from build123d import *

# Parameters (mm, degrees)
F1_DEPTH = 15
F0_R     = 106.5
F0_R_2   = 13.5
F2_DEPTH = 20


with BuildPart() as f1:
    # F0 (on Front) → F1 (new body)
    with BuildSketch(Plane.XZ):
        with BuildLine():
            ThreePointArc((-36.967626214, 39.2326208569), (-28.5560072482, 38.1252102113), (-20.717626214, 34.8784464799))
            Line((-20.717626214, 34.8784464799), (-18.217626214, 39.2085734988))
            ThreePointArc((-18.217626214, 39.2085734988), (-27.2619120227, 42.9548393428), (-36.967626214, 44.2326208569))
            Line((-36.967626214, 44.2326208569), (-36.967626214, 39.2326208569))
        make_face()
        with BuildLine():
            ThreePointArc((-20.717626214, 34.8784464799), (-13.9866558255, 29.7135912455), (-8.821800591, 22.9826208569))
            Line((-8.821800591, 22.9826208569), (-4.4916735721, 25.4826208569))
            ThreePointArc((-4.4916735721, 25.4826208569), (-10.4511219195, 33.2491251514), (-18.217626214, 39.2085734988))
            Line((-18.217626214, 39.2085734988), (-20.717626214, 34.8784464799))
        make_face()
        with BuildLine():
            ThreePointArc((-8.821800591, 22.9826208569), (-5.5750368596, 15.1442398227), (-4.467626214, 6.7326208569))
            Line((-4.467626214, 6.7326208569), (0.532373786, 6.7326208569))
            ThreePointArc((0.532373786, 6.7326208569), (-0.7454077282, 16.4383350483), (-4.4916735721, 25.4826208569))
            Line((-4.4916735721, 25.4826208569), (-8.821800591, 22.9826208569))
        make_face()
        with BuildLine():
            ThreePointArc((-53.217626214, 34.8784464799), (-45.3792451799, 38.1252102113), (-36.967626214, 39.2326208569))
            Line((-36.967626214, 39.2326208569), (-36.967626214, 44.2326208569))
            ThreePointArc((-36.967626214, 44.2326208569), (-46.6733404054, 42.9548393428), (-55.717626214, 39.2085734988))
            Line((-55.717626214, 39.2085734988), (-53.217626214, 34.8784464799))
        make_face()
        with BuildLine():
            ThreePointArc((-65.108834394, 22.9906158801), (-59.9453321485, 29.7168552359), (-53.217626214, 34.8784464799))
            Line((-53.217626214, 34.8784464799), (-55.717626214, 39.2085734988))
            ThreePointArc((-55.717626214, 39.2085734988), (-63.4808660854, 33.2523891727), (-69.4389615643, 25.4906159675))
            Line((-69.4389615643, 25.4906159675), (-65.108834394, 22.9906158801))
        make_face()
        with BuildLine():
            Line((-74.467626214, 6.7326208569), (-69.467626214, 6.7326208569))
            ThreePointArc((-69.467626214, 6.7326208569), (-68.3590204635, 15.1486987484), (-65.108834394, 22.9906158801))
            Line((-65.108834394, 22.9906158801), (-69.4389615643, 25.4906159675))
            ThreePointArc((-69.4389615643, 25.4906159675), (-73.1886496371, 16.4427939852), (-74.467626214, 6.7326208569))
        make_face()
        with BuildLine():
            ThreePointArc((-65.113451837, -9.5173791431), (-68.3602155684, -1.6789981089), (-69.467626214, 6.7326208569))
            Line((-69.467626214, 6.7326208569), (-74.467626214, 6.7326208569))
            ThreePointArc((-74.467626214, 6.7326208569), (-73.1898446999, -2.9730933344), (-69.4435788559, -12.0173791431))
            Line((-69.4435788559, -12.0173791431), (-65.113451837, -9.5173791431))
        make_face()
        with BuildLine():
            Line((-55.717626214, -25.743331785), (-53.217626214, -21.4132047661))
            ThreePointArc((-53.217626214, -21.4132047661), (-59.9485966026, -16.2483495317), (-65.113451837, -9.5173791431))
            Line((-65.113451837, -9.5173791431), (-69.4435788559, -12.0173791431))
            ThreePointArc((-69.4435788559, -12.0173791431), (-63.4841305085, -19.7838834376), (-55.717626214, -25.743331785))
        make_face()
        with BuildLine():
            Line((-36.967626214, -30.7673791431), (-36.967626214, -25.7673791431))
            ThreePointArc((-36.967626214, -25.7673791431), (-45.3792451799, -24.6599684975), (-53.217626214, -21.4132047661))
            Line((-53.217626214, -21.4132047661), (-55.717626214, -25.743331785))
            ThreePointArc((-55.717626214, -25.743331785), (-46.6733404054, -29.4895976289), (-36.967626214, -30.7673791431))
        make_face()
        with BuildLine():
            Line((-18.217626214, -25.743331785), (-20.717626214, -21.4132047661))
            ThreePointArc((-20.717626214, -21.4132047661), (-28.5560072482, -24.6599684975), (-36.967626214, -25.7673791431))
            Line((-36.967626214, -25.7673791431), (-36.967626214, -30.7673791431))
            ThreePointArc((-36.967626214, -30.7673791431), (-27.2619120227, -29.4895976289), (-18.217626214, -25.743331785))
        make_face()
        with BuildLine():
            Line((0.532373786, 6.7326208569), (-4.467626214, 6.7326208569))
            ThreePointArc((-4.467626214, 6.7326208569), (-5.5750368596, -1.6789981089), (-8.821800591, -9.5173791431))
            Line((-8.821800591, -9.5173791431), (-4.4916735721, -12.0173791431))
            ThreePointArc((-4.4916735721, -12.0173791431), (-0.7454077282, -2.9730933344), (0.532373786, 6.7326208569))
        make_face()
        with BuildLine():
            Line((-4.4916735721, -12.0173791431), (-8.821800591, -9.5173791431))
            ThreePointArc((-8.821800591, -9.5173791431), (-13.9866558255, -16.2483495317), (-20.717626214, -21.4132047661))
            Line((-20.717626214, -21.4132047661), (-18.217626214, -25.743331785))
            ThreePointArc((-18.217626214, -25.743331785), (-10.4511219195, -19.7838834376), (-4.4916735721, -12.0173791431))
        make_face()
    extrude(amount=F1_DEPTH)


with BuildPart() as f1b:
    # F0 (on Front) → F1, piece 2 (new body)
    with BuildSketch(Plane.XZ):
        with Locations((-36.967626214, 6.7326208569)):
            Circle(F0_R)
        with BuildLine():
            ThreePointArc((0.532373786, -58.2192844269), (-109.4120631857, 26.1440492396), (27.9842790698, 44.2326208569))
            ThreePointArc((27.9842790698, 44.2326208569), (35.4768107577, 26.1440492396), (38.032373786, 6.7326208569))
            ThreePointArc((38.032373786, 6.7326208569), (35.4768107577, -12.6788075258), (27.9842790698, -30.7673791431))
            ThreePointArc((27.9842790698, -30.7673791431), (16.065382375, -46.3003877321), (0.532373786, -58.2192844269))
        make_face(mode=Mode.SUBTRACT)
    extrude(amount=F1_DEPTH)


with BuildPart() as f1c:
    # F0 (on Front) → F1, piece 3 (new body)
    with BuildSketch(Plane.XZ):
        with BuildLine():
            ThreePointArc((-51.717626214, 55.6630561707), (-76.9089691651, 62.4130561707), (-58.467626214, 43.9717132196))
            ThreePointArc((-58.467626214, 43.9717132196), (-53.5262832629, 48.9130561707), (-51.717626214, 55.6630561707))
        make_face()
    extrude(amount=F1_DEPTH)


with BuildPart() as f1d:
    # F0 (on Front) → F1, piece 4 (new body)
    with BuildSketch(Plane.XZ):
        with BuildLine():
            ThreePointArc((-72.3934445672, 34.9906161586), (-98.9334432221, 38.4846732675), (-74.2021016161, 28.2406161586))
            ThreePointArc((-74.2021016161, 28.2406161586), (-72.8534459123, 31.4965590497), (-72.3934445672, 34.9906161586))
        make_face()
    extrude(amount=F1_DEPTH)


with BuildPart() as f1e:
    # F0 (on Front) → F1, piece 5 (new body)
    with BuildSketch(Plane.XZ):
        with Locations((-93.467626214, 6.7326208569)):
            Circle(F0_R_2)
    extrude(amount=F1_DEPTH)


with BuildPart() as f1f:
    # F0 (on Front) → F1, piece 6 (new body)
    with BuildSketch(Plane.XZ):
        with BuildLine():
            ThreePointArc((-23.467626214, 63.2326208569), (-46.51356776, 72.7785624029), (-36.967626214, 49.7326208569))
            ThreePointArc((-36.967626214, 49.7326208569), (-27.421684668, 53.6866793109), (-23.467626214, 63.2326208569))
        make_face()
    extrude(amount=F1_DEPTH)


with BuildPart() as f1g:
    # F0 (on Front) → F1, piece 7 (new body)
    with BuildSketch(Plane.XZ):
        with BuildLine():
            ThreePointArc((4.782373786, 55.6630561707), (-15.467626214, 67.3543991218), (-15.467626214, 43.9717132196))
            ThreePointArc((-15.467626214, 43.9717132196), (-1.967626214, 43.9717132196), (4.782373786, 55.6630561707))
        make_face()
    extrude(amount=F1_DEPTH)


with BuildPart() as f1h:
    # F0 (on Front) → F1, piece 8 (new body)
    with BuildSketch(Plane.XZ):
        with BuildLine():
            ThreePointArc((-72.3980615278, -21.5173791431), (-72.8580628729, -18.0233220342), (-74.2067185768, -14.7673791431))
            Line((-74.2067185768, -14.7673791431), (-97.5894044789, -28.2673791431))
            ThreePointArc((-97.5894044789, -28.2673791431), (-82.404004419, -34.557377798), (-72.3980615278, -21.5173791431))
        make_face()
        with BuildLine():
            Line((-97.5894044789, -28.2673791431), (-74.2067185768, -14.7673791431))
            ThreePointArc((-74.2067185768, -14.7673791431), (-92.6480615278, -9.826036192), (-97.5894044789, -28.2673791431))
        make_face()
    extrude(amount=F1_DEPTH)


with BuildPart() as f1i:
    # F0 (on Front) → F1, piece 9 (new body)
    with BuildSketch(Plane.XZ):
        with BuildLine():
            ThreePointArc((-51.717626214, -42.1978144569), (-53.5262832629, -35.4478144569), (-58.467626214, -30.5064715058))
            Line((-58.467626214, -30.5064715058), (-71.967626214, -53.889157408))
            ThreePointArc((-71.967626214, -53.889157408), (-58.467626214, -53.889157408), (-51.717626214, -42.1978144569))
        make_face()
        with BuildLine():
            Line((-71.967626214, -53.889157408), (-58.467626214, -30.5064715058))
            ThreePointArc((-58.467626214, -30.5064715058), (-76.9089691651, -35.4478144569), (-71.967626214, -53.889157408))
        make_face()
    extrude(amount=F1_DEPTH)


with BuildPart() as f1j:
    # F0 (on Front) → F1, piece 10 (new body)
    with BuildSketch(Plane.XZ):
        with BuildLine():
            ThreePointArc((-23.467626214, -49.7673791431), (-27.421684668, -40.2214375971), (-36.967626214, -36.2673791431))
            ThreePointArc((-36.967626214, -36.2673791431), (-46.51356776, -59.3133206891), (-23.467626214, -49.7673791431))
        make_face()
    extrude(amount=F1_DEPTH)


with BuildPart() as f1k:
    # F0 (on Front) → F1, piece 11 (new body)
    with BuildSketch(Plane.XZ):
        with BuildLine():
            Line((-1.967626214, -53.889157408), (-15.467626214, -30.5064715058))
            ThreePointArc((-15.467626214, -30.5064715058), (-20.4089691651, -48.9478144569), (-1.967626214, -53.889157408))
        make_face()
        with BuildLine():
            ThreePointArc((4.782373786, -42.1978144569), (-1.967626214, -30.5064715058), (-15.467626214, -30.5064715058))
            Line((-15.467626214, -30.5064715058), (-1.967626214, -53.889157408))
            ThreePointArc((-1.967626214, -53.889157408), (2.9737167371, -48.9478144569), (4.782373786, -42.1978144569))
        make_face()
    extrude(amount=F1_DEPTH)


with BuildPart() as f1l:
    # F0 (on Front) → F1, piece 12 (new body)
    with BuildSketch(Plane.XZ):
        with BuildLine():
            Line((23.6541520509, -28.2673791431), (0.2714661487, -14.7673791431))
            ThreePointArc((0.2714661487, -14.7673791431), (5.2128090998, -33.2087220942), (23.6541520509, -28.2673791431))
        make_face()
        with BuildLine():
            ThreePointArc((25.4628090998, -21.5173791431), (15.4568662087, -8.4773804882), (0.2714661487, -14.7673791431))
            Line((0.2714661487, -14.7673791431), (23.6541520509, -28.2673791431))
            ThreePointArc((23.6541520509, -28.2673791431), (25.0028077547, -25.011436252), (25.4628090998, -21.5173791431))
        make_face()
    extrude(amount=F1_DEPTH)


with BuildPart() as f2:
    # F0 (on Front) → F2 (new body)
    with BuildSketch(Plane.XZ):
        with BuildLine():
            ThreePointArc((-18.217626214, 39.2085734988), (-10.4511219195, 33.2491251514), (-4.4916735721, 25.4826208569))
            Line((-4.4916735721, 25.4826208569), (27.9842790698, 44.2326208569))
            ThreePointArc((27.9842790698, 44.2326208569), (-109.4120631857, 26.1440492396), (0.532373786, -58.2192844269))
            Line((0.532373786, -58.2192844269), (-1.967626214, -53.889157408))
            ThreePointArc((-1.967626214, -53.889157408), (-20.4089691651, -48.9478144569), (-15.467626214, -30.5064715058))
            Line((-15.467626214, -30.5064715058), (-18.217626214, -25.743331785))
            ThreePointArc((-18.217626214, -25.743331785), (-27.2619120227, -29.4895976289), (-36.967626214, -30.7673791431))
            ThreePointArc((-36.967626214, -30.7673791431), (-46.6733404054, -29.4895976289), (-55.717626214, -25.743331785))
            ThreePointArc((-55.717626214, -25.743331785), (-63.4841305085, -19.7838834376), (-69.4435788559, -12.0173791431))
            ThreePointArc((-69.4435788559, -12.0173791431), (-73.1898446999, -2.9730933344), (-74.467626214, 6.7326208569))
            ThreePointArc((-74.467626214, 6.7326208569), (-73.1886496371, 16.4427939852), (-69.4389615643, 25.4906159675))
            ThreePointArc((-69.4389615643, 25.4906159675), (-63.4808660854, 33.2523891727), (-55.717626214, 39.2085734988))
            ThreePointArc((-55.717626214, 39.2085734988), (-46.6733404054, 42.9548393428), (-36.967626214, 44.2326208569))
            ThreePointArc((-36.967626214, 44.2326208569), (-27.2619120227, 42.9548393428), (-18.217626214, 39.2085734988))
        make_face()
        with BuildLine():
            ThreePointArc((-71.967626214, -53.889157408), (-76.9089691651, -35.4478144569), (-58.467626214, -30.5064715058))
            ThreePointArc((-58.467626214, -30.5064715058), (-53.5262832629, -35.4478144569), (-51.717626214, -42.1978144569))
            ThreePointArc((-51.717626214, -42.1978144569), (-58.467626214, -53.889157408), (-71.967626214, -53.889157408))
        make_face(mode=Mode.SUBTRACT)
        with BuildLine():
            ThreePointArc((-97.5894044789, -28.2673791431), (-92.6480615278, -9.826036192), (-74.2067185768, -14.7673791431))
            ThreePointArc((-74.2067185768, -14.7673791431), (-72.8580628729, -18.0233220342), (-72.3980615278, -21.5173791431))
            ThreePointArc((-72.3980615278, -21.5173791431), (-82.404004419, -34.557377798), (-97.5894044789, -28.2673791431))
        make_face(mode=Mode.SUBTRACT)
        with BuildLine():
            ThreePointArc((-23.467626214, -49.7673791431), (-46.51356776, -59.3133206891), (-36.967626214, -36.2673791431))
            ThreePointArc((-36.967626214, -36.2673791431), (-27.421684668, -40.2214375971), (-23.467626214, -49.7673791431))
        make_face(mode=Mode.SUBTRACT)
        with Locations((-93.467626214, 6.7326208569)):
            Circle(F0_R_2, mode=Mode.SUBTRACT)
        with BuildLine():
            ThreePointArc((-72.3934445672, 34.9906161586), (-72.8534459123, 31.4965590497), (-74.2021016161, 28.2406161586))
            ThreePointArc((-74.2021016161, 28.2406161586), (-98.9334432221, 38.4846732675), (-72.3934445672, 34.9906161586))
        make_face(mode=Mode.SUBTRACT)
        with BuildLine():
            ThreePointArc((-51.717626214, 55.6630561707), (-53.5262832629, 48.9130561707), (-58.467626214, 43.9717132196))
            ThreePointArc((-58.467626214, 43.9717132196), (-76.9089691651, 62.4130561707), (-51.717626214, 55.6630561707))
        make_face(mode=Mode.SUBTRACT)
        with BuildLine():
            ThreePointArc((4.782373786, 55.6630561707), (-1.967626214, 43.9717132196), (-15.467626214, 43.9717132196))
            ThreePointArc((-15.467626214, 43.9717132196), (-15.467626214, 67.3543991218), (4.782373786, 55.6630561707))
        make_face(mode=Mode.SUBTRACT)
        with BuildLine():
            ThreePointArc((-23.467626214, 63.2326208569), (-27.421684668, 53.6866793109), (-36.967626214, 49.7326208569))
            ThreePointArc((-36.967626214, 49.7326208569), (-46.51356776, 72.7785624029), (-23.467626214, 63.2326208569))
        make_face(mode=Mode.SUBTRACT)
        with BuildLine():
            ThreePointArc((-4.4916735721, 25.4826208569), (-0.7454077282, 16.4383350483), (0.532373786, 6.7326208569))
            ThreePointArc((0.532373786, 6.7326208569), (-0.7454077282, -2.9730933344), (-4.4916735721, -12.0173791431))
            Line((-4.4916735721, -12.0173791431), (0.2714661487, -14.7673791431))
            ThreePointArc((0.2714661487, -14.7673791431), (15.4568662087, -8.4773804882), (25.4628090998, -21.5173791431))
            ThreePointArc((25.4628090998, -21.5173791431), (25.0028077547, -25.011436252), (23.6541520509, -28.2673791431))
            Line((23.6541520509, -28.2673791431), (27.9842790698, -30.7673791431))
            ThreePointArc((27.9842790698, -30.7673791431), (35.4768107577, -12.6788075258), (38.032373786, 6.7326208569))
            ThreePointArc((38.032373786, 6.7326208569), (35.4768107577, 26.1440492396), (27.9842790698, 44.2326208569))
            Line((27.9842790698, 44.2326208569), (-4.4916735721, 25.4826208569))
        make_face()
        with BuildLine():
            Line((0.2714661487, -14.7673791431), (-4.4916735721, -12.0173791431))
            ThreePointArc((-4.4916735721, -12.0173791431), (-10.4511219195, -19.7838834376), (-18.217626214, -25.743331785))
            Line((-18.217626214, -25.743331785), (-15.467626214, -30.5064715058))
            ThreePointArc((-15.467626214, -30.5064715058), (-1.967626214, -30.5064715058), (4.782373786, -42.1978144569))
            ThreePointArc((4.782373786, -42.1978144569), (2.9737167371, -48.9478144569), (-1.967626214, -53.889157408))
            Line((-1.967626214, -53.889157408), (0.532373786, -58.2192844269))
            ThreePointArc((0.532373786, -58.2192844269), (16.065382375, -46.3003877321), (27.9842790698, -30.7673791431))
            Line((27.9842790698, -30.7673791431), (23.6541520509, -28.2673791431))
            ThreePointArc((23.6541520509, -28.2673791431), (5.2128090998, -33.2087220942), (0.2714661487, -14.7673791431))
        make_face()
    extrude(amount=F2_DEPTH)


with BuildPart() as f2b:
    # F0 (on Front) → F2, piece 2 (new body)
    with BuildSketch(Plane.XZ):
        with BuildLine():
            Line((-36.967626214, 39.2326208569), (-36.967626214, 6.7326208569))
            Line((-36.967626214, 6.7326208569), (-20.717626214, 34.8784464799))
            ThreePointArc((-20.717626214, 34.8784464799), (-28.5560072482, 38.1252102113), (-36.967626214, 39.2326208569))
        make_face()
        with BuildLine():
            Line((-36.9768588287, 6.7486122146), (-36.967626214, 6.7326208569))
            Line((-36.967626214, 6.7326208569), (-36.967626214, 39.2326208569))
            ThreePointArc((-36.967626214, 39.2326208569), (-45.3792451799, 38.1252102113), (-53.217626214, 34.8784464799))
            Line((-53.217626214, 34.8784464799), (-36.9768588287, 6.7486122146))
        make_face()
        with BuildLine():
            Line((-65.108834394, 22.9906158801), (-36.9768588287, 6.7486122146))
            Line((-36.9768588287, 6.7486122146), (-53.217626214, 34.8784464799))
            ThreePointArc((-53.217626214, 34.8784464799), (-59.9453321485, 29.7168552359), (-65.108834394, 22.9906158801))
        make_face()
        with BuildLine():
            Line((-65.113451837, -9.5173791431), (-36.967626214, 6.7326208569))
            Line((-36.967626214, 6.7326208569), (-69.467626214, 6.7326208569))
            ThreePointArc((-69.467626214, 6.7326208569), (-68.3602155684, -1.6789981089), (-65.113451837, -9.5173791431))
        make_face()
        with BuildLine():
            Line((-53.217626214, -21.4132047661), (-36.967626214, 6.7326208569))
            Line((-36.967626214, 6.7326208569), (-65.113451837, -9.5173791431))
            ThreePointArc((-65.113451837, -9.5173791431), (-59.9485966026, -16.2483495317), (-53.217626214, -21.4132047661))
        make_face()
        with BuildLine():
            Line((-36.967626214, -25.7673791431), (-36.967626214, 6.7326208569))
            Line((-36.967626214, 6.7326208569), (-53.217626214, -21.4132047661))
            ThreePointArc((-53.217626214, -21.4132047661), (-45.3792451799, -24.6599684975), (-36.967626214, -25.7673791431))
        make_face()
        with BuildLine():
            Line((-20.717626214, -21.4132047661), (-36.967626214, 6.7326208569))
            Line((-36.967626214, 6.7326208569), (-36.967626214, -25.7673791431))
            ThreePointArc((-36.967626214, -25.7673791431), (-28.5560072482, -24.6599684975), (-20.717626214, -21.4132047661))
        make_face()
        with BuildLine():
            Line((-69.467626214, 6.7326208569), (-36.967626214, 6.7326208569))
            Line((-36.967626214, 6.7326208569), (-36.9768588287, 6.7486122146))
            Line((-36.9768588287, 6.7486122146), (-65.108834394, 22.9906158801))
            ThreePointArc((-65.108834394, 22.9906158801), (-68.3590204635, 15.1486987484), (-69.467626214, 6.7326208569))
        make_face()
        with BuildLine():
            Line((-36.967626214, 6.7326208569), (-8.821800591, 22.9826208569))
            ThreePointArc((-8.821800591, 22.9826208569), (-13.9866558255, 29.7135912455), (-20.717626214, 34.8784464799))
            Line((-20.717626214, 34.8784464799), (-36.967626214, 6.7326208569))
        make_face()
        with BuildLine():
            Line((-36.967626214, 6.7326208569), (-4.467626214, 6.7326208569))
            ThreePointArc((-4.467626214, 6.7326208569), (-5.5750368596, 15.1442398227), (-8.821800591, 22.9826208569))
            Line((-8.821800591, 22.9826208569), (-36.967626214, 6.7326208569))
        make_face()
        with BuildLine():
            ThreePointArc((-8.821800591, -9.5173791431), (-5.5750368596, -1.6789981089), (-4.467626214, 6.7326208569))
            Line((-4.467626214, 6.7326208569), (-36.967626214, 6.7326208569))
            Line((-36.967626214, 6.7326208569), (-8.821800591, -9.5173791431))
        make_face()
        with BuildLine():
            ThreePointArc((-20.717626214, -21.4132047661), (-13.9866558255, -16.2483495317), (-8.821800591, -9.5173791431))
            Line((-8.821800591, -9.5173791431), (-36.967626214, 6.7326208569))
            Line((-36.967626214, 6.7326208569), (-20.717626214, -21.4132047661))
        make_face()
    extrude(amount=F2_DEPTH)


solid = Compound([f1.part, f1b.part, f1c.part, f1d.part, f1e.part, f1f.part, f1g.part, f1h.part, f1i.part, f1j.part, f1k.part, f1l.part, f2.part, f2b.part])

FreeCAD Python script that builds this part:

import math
import FreeCAD as App
import Part
import Sketcher

V = App.Vector
Q = App.Units.Quantity

doc = App.newDocument("Part")
body = doc.addObject("PartDesign::Body", "Body")

sketch1 = body.newObject("Sketcher::SketchObject", "Sketch")
sketch1.AttachmentSupport = (doc.getObject("XZ_Plane"), [""])
sketch1.MapMode = "FlatFace"
sketch1.addGeometry([
    Part.ArcOfCircle(Part.Circle(V(-37, 7, 0), V(0, 0, 1), 38), math.radians(-30), math.radians(0)),
    Part.ArcOfCircle(Part.Circle(V(-37, 7, 0), V(0, 0, 1), 38), math.radians(0), math.radians(30)),
    Part.ArcOfCircle(Part.Circle(V(-37, 7, 0), V(0, 0, 1), 37), math.radians(30), math.radians(60)),
    Part.ArcOfCircle(Part.Circle(V(-37, 7, 0), V(0, 0, 1), 37), math.radians(60), math.radians(90)),
    Part.ArcOfCircle(Part.Circle(V(-37, 7, 0), V(0, 0, 1), 37), math.radians(90), math.radians(120)),
    Part.ArcOfCircle(Part.Circle(V(-37, 7, 0), V(0, 0, 1), 37), math.radians(120), math.radians(150)),
    Part.ArcOfCircle(Part.Circle(V(-37, 7, 0), V(0, 0, 1), 38), math.radians(150), math.radians(180)),
    Part.ArcOfCircle(Part.Circle(V(-37, 7, 0), V(0, 0, 1), 37), math.radians(180), math.radians(210)),
    Part.ArcOfCircle(Part.Circle(V(-37, 7, 0), V(0, 0, 1), 37), math.radians(-150), math.radians(-120)),
    Part.ArcOfCircle(Part.Circle(V(-37, 7, 0), V(0, 0, 1), 38), math.radians(-120), math.radians(-90)),
    Part.ArcOfCircle(Part.Circle(V(-37, 7, 0), V(0, 0, 1), 38), math.radians(-90), math.radians(-60)),
    Part.ArcOfCircle(Part.Circle(V(-37, 7, 0), V(0, 0, 1), 37), math.radians(-60), math.radians(-30)),
    Part.ArcOfCircle(Part.Circle(V(-37, 7, 0), V(0, 0, 1), 32), math.radians(60), math.radians(90)),
    Part.ArcOfCircle(Part.Circle(V(-37, 7, 0), V(0, 0, 1), 33), math.radians(30), math.radians(60)),
    Part.ArcOfCircle(Part.Circle(V(-37, 7, 0), V(0, 0, 1), 32), math.radians(0), math.radians(30)),
    Part.ArcOfCircle(Part.Circle(V(-37, 7, 0), V(0, 0, 1), 32), math.radians(-30), math.radians(0)),
    Part.ArcOfCircle(Part.Circle(V(-37, 7, 0), V(0, 0, 1), 33), math.radians(-60), math.radians(-30)),
    Part.ArcOfCircle(Part.Circle(V(-37, 7, 0), V(0, 0, 1), 32), math.radians(-90), math.radians(-60)),
    Part.ArcOfCircle(Part.Circle(V(-37, 7, 0), V(0, 0, 1), 32), math.radians(-120), math.radians(-90)),
    Part.ArcOfCircle(Part.Circle(V(-37, 7, 0), V(0, 0, 1), 32), math.radians(-150), math.radians(-120)),
    Part.ArcOfCircle(Part.Circle(V(-37, 7, 0), V(0, 0, 1), 32), math.radians(180), math.radians(210)),
    Part.ArcOfCircle(Part.Circle(V(-37, 7, 0), V(0, 0, 1), 32), math.radians(150), math.radians(180)),
    Part.ArcOfCircle(Part.Circle(V(-37, 7, 0), V(0, 0, 1), 33), math.radians(120), math.radians(150)),
    Part.ArcOfCircle(Part.Circle(V(-37, 7, 0), V(0, 0, 1), 32), math.radians(90), math.radians(120)),
], False)
sketch1.addConstraint([
    Sketcher.Constraint("Tangent", 0, 2, 1, 1),
    Sketcher.Constraint("Tangent", 1, 2, 2, 1),
    Sketcher.Constraint("Tangent", 2, 2, 3, 1),
    Sketcher.Constraint("Tangent", 3, 2, 4, 1),
    Sketcher.Constraint("Tangent", 4, 2, 5, 1),
    Sketcher.Constraint("Tangent", 5, 2, 6, 1),
    Sketcher.Constraint("Tangent", 6, 2, 7, 1),
    Sketcher.Constraint("Tangent", 7, 2, 8, 1),
    Sketcher.Constraint("Tangent", 8, 2, 9, 1),
    Sketcher.Constraint("Tangent", 9, 2, 10, 1),
    Sketcher.Constraint("Tangent", 10, 2, 11, 1),
    Sketcher.Constraint("Tangent", 11, 2, 0, 1),
    Sketcher.Constraint("Tangent", 12, 1, 13, 2),
    Sketcher.Constraint("Tangent", 13, 1, 14, 2),
    Sketcher.Constraint("Tangent", 14, 1, 15, 2),
    Sketcher.Constraint("Tangent", 15, 1, 16, 2),
    Sketcher.Constraint("Tangent", 16, 1, 17, 2),
    Sketcher.Constraint("Tangent", 17, 1, 18, 2),
    Sketcher.Constraint("Tangent", 18, 1, 19, 2),
    Sketcher.Constraint("Tangent", 19, 1, 20, 2),
    Sketcher.Constraint("Tangent", 20, 1, 21, 2),
    Sketcher.Constraint("Tangent", 21, 1, 22, 2),
    Sketcher.Constraint("Tangent", 22, 1, 23, 2),
    Sketcher.Constraint("Tangent", 23, 1, 12, 2),
    Sketcher.Constraint("Coincident", 2, 3, 0, 3),
    Sketcher.Constraint("Coincident", 4, 3, 0, 3),
    Sketcher.Constraint("Coincident", 6, 3, 0, 3),
    Sketcher.Constraint("Coincident", 8, 3, 0, 3),
    Sketcher.Constraint("Coincident", 12, 3, 0, 3),
    Sketcher.Constraint("Coincident", 14, 3, 0, 3),
    Sketcher.Constraint("Coincident", 16, 3, 0, 3),
    Sketcher.Constraint("Coincident", 18, 3, 0, 3),
    Sketcher.Constraint("Coincident", 20, 3, 0, 3),
    Sketcher.Constraint("Equal", 8, 9),
    Sketcher.Constraint("Equal", 20, 21),
    Sketcher.Constraint("Horizontal", 23, 3, 0, 2),
    Sketcher.Constraint("Horizontal", 2, 2, 4, 2),
    Sketcher.Constraint("Horizontal", 0, 2, 6, 2),
    Sketcher.Constraint("Horizontal", 8, 2, 10, 2),
    Sketcher.Constraint("Horizontal", 7, 2, 11, 2),
    Sketcher.Constraint("Horizontal", 6, 2, 14, 1),
    Sketcher.Constraint("Horizontal", 16, 1, 18, 1),
    Sketcher.Constraint("Horizontal", 15, 1, 19, 1),
    Sketcher.Constraint("Horizontal", 14, 1, 20, 1),
    Sketcher.Constraint("Horizontal", 12, 1, 22, 1),
    Sketcher.Constraint("Vertical", 23, 3, 3, 2),
    Sketcher.Constraint("Vertical", 4, 2, 8, 2),
    Sketcher.Constraint("Vertical", 3, 2, 9, 2),
    Sketcher.Constraint("Vertical", 1, 2, 11, 2),
    Sketcher.Constraint("Vertical", 13, 1, 15, 1),
    Sketcher.Constraint("Vertical", 12, 1, 16, 1),
    Sketcher.Constraint("Vertical", 9, 2, 17, 1),
    Sketcher.Constraint("Vertical", 17, 1, 23, 1),
    Sketcher.Constraint("Radius", 0, Q("37.5 mm")),
    Sketcher.Constraint("Radius", 12, Q("32.5 mm")),
    Sketcher.Constraint("DistanceX", 12, 1, 2, 2, Q("2.5 mm")),
    Sketcher.Constraint("DistanceY", 13, 1, 1, 2, Q("2.5 mm")),
    Sketcher.Constraint("DistanceY", 21, 1, 5, 2, Q("2.5 mm")),
    Sketcher.Constraint("DistanceY", 0, 2, 1, 2, Q("18.75 mm")),
    Sketcher.Constraint("DistanceX", 4, 3, 2, 2, Q("18.75 mm")),
    Sketcher.Constraint("DistanceX", 13, 1, -1, 1, Q("8.821801 mm")),
    Sketcher.Constraint("DistanceY", -1, 1, 0, 3, Q("6.732621 mm")),
    Sketcher.Constraint("DistanceX", 5, 2, -1, 1, Q("69.438962 mm")),
])
pad1 = body.newObject("PartDesign::Pad", "Pad")
pad1.Profile = sketch1
pad1.Length = 15
body2 = doc.addObject("PartDesign::Body", "Body001")

sketch2 = body2.newObject("Sketcher::SketchObject", "Sketch001")
sketch2.AttachmentSupport = (doc.getObject("XZ_Plane001"), [""])
sketch2.MapMode = "FlatFace"
sketch2.addGeometry([
    Part.Circle(V(-37, 7, 0), V(0, 0, 1), 106),
    Part.ArcOfCircle(Part.Circle(V(-37, 7, 0), V(0, 0, 1), 75), math.radians(-60), math.radians(-30)),
    Part.ArcOfCircle(Part.Circle(V(-37, 7, 0), V(0, 0, 1), 75), math.radians(30), math.radians(300)),
    Part.ArcOfCircle(Part.Circle(V(-37, 7, 0), V(0, 0, 1), 75), math.radians(0), math.radians(30)),
    Part.ArcOfCircle(Part.Circle(V(-37, 7, 0), V(0, 0, 1), 75), math.radians(-30), math.radians(0)),
], False)
sketch2.addConstraint([
    Sketcher.Constraint("Tangent", 1, 1, 2, 2),
    Sketcher.Constraint("Tangent", 2, 1, 3, 2),
    Sketcher.Constraint("Tangent", 3, 1, 4, 2),
    Sketcher.Constraint("Tangent", 4, 1, 1, 2),
    Sketcher.Constraint("Coincident", 1, 3, 0, 3),
    Sketcher.Constraint("Equal", 1, 2),
    Sketcher.Constraint("Horizontal", 4, 3, 3, 1),
    Sketcher.Constraint("Vertical", 2, 1, 4, 1),
    Sketcher.Constraint("Diameter", 0, Q("213 mm")),
    Sketcher.Constraint("Radius", 1, Q("75 mm")),
    Sketcher.Constraint("DistanceX", 1, 3, 1, 1, Q("37.5 mm")),
    Sketcher.Constraint("DistanceY", 3, 3, 2, 1, Q("37.5 mm")),
    Sketcher.Constraint("DistanceY", -1, 1, 0, 3, Q("6.732621 mm")),
    Sketcher.Constraint("DistanceX", -1, 1, 2, 1, Q("27.984279 mm")),
])
pad2 = body2.newObject("PartDesign::Pad", "Pad001")
pad2.Profile = sketch2
pad2.Length = 15
body3 = doc.addObject("PartDesign::Body", "Body002")

sketch3 = body3.newObject("Sketcher::SketchObject", "Sketch002")
sketch3.AttachmentSupport = (doc.getObject("XZ_Plane002"), [""])
sketch3.MapMode = "FlatFace"
sketch3.addGeometry([
    Part.ArcOfCircle(Part.Circle(V(-65, 56, 0), V(0, 0, 1), 14), math.radians(0), math.radians(300)),
    Part.ArcOfCircle(Part.Circle(V(-65, 56, 0), V(0, 0, 1), 14), math.radians(-60), math.radians(0)),
], False)
sketch3.addConstraint([
    Sketcher.Constraint("Tangent", 0, 1, 1, 2),
    Sketcher.Constraint("Coincident", 1, 1, 0, 2),
    Sketcher.Constraint("Horizontal", 1, 3, 0, 1),
    Sketcher.Constraint("Radius", 0, Q("13.5 mm")),
    Sketcher.Constraint("DistanceX", 1, 1, 0, 1, Q("6.75 mm")),
    Sketcher.Constraint("DistanceX", 0, 3, -1, 1, Q("65.217626 mm")),
    Sketcher.Constraint("DistanceY", -1, 1, 0, 3, Q("55.663056 mm")),
])
pad3 = body3.newObject("PartDesign::Pad", "Pad002")
pad3.Profile = sketch3
pad3.Length = 15
body4 = doc.addObject("PartDesign::Body", "Body003")

sketch4 = body4.newObject("Sketcher::SketchObject", "Sketch003")
sketch4.AttachmentSupport = (doc.getObject("XZ_Plane003"), [""])
sketch4.MapMode = "FlatFace"
sketch4.addGeometry([
    Part.ArcOfCircle(Part.Circle(V(-86, 35, 0), V(0, 0, 1), 14), math.radians(0), math.radians(330)),
    Part.ArcOfCircle(Part.Circle(V(-86, 35, 0), V(0, 0, 1), 14), math.radians(-30), math.radians(0)),
], False)
sketch4.addConstraint([
    Sketcher.Constraint("Tangent", 0, 1, 1, 2),
    Sketcher.Constraint("Coincident", 1, 1, 0, 2),
    Sketcher.Constraint("Horizontal", 1, 3, 0, 1),
    Sketcher.Constraint("Radius", 0, Q("13.5 mm")),
    Sketcher.Constraint("DistanceY", 1, 1, 0, 1, Q("6.75 mm")),
    Sketcher.Constraint("DistanceX", 1, 1, -1, 1, Q("74.202102 mm")),
    Sketcher.Constraint("DistanceY", -1, 1, 0, 3, Q("34.990616 mm")),
])
pad4 = body4.newObject("PartDesign::Pad", "Pad003")
pad4.Profile = sketch4
pad4.Length = 15
body5 = doc.addObject("PartDesign::Body", "Body004")

sketch5 = body5.newObject("Sketcher::SketchObject", "Sketch004")
sketch5.AttachmentSupport = (doc.getObject("XZ_Plane004"), [""])
sketch5.MapMode = "FlatFace"
sketch5.addGeometry(Part.Circle(V(-93, 7, 0), V(0, 0, 1), 14), False)
sketch5.addConstraint([
    Sketcher.Constraint("Diameter", 0, Q("27 mm")),
    Sketcher.Constraint("DistanceY", -1, 1, 0, 3, Q("6.732621 mm")),
    Sketcher.Constraint("DistanceX", 0, 3, -1, 1, Q("93.467626 mm")),
])
pad5 = body5.newObject("PartDesign::Pad", "Pad004")
pad5.Profile = sketch5
pad5.Length = 15
body6 = doc.addObject("PartDesign::Body", "Body005")

sketch6 = body6.newObject("Sketcher::SketchObject", "Sketch005")
sketch6.AttachmentSupport = (doc.getObject("XZ_Plane005"), [""])
sketch6.MapMode = "FlatFace"
sketch6.addGeometry([
    Part.ArcOfCircle(Part.Circle(V(-37, 63, 0), V(0, 0, 1), 14), math.radians(0), math.radians(270)),
    Part.ArcOfCircle(Part.Circle(V(-37, 63, 0), V(0, 0, 1), 14), math.radians(-90), math.radians(0)),
], False)
sketch6.addConstraint([
    Sketcher.Constraint("Tangent", 0, 1, 1, 2),
    Sketcher.Constraint("Coincident", 1, 1, 0, 2),
    Sketcher.Constraint("Horizontal", 1, 3, 0, 1),
    Sketcher.Constraint("Vertical", 0, 3, 1, 1),
    Sketcher.Constraint("Radius", 0, Q("13.5 mm")),
    Sketcher.Constraint("DistanceY", -1, 1, 0, 3, Q("63.232621 mm")),
    Sketcher.Constraint("DistanceX", 0, 3, -1, 1, Q("36.967626 mm")),
])
pad6 = body6.newObject("PartDesign::Pad", "Pad005")
pad6.Profile = sketch6
pad6.Length = 15
body7 = doc.addObject("PartDesign::Body", "Body006")

sketch7 = body7.newObject("Sketcher::SketchObject", "Sketch006")
sketch7.AttachmentSupport = (doc.getObject("XZ_Plane006"), [""])
sketch7.MapMode = "FlatFace"
sketch7.addGeometry(Part.Circle(V(-9, 56, 0), V(0, 0, 1), 14), False)
sketch7.addConstraint([
    Sketcher.Constraint("Diameter", 0, Q("27 mm")),
    Sketcher.Constraint("DistanceX", 0, 3, -1, 1, Q("8.717626 mm")),
    Sketcher.Constraint("DistanceY", -1, 1, 0, 3, Q("55.663056 mm")),
])
pad7 = body7.newObject("PartDesign::Pad", "Pad006")
pad7.Profile = sketch7
pad7.Length = 15
body8 = doc.addObject("PartDesign::Body", "Body007")

sketch8 = body8.newObject("Sketcher::SketchObject", "Sketch007")
sketch8.AttachmentSupport = (doc.getObject("XZ_Plane007"), [""])
sketch8.MapMode = "FlatFace"
sketch8.addGeometry([
    Part.ArcOfCircle(Part.Circle(V(-86, -22, 0), V(0, 0, 1), 13), math.radians(0), math.radians(30)),
    Part.ArcOfCircle(Part.Circle(V(-86, -22, 0), V(0, 0, 1), 14), math.radians(30), math.radians(360)),
], False)
sketch8.addConstraint([
    Sketcher.Constraint("Tangent", 0, 1, 1, 2),
    Sketcher.Constraint("Coincident", 1, 1, 0, 2),
    Sketcher.Constraint("Horizontal", 1, 3, 0, 1),
    Sketcher.Constraint("Radius", 0, Q("13.5 mm")),
    Sketcher.Constraint("DistanceY", 0, 1, 1, 1, Q("6.75 mm")),
    Sketcher.Constraint("DistanceX", 0, 3, -1, 1, Q("85.898062 mm")),
    Sketcher.Constraint("DistanceY", 0, 3, -1, 1, Q("21.517379 mm")),
])
pad8 = body8.newObject("PartDesign::Pad", "Pad007")
pad8.Profile = sketch8
pad8.Length = 15
body9 = doc.addObject("PartDesign::Body", "Body008")

sketch9 = body9.newObject("Sketcher::SketchObject", "Sketch008")
sketch9.AttachmentSupport = (doc.getObject("XZ_Plane008"), [""])
sketch9.MapMode = "FlatFace"
sketch9.addGeometry(Part.Circle(V(-65, -42, 0), V(0, 0, 1), 14), False)
sketch9.addConstraint([
    Sketcher.Constraint("Diameter", 0, Q("27 mm")),
    Sketcher.Constraint("DistanceX", 0, 3, -1, 1, Q("65.217626 mm")),
    Sketcher.Constraint("DistanceY", 0, 3, -1, 1, Q("42.197814 mm")),
])
pad9 = body9.newObject("PartDesign::Pad", "Pad008")
pad9.Profile = sketch9
pad9.Length = 15
body10 = doc.addObject("PartDesign::Body", "Body009")

sketch10 = body10.newObject("Sketcher::SketchObject", "Sketch009")
sketch10.AttachmentSupport = (doc.getObject("XZ_Plane009"), [""])
sketch10.MapMode = "FlatFace"
sketch10.addGeometry([
    Part.ArcOfCircle(Part.Circle(V(-37, -50, 0), V(0, 0, 1), 14), math.radians(0), math.radians(90)),
    Part.ArcOfCircle(Part.Circle(V(-37, -50, 0), V(0, 0, 1), 14), math.radians(90), math.radians(360)),
], False)
sketch10.addConstraint([
    Sketcher.Constraint("Tangent", 0, 1, 1, 2),
    Sketcher.Constraint("Coincident", 1, 1, 0, 2),
    Sketcher.Constraint("Horizontal", 1, 3, 0, 1),
    Sketcher.Constraint("Vertical", 0, 3, 1, 1),
    Sketcher.Constraint("Radius", 0, Q("13.5 mm")),
    Sketcher.Constraint("DistanceY", 0, 3, -1, 1, Q("49.767379 mm")),
    Sketcher.Constraint("DistanceX", 0, 3, -1, 1, Q("36.967626 mm")),
])
pad10 = body10.newObject("PartDesign::Pad", "Pad009")
pad10.Profile = sketch10
pad10.Length = 15
body11 = doc.addObject("PartDesign::Body", "Body010")

sketch11 = body11.newObject("Sketcher::SketchObject", "Sketch010")
sketch11.AttachmentSupport = (doc.getObject("XZ_Plane010"), [""])
sketch11.MapMode = "FlatFace"
sketch11.addGeometry(Part.Circle(V(-9, -42, 0), V(0, 0, 1), 14), False)
sketch11.addConstraint([
    Sketcher.Constraint("Diameter", 0, Q("27 mm")),
    Sketcher.Constraint("DistanceX", 0, 3, -1, 1, Q("8.717626 mm")),
    Sketcher.Constraint("DistanceY", 0, 3, -1, 1, Q("42.197814 mm")),
])
pad11 = body11.newObject("PartDesign::Pad", "Pad010")
pad11.Profile = sketch11
pad11.Length = 15
body12 = doc.addObject("PartDesign::Body", "Body011")

sketch12 = body12.newObject("Sketcher::SketchObject", "Sketch011")
sketch12.AttachmentSupport = (doc.getObject("XZ_Plane011"), [""])
sketch12.MapMode = "FlatFace"
sketch12.addGeometry([
    Part.ArcOfCircle(Part.Circle(V(12, -22, 0), V(0, 0, 1), 14), math.radians(150), math.radians(330)),
    Part.ArcOfCircle(Part.Circle(V(12, -22, 0), V(0, 0, 1), 14), math.radians(-30), math.radians(150)),
], False)
sketch12.addConstraint([
    Sketcher.Constraint("Tangent", 0, 1, 1, 2),
    Sketcher.Constraint("Coincident", 1, 1, 0, 2),
    Sketcher.Constraint("Radius", 0, Q("13.5 mm")),
    Sketcher.Constraint("DistanceY", 1, 1, 0, 1, Q("13.5 mm")),
    Sketcher.Constraint("DistanceY", 0, 3, 0, 1, Q("6.75 mm")),
    Sketcher.Constraint("DistanceX", -1, 1, 0, 3, Q("11.962809 mm")),
    Sketcher.Constraint("DistanceY", 0, 3, -1, 1, Q("21.517379 mm")),
])
pad12 = body12.newObject("PartDesign::Pad", "Pad011")
pad12.Profile = sketch12
pad12.Length = 15
body13 = doc.addObject("PartDesign::Body", "Body012")

sketch13 = body13.newObject("Sketcher::SketchObject", "Sketch012")
sketch13.AttachmentSupport = (doc.getObject("XZ_Plane012"), [""])
sketch13.MapMode = "FlatFace"
sketch13.addGeometry([
    Part.ArcOfCircle(Part.Circle(V(-37, 7, 0), V(0, 0, 1), 75), math.radians(-30), math.radians(0)),
    Part.ArcOfCircle(Part.Circle(V(-37, 7, 0), V(0, 0, 1), 75), math.radians(0), math.radians(30)),
    Part.ArcOfCircle(Part.Circle(V(-37, 7, 0), V(0, 0, 1), 75), math.radians(30), math.radians(300)),
    Part.ArcOfCircle(Part.Circle(V(-37, 7, 0), V(0, 0, 1), 75), math.radians(-60), math.radians(-30)),
    Part.ArcOfCircle(Part.Circle(V(-37, 7, 0), V(0, 0, 1), 37), math.radians(30), math.radians(60)),
    Part.ArcOfCircle(Part.Circle(V(-37, 7, 0), V(0, 0, 1), 38), math.radians(0), math.radians(30)),
    Part.ArcOfCircle(Part.Circle(V(-37, 7, 0), V(0, 0, 1), 38), math.radians(-30), math.radians(0)),
    Part.ArcOfCircle(Part.Circle(V(-37, 7, 0), V(0, 0, 1), 37), math.radians(-60), math.radians(-30)),
    Part.ArcOfCircle(Part.Circle(V(-37, 7, 0), V(0, 0, 1), 38), math.radians(-90), math.radians(-60)),
    Part.ArcOfCircle(Part.Circle(V(-37, 7, 0), V(0, 0, 1), 38), math.radians(-120), math.radians(-90)),
    Part.ArcOfCircle(Part.Circle(V(-37, 7, 0), V(0, 0, 1), 37), math.radians(-150), math.radians(-120)),
    Part.ArcOfCircle(Part.Circle(V(-37, 7, 0), V(0, 0, 1), 37), math.radians(180), math.radians(210)),
    Part.ArcOfCircle(Part.Circle(V(-37, 7, 0), V(0, 0, 1), 38), math.radians(150), math.radians(180)),
    Part.ArcOfCircle(Part.Circle(V(-37, 7, 0), V(0, 0, 1), 37), math.radians(120), math.radians(150)),
    Part.ArcOfCircle(Part.Circle(V(-37, 7, 0), V(0, 0, 1), 37), math.radians(90), math.radians(120)),
    Part.ArcOfCircle(Part.Circle(V(-37, 7, 0), V(0, 0, 1), 37), math.radians(60), math.radians(90)),
    Part.Circle(V(12, -22, 0), V(0, 0, 1), 14),
    Part.Circle(V(-9, -42, 0), V(0, 0, 1), 14),
    Part.Circle(V(-65, -42, 0), V(0, 0, 1), 14),
    Part.ArcOfCircle(Part.Circle(V(-86, -22, 0), V(0, 0, 1), 14), math.radians(30), math.radians(360)),
    Part.ArcOfCircle(Part.Circle(V(-86, -22, 0), V(0, 0, 1), 13), math.radians(0), math.radians(30)),
    Part.ArcOfCircle(Part.Circle(V(-37, -50, 0), V(0, 0, 1), 14), math.radians(0), math.radians(90)),
    Part.ArcOfCircle(Part.Circle(V(-37, -50, 0), V(0, 0, 1), 14), math.radians(90), math.radians(360)),
    Part.Circle(V(-93, 7, 0), V(0, 0, 1), 14),
    Part.ArcOfCircle(Part.Circle(V(-86, 35, 0), V(0, 0, 1), 14), math.radians(0), math.radians(330)),
    Part.ArcOfCircle(Part.Circle(V(-86, 35, 0), V(0, 0, 1), 14), math.radians(-30), math.radians(0)),
    Part.ArcOfCircle(Part.Circle(V(-65, 56, 0), V(0, 0, 1), 14), math.radians(0), math.radians(300)),
    Part.ArcOfCircle(Part.Circle(V(-65, 56, 0), V(0, 0, 1), 14), math.radians(-60), math.radians(0)),
    Part.ArcOfCircle(Part.Circle(V(-37, 63, 0), V(0, 0, 1), 14), math.radians(0), math.radians(270)),
    Part.ArcOfCircle(Part.Circle(V(-37, 63, 0), V(0, 0, 1), 14), math.radians(-90), math.radians(0)),
    Part.Circle(V(-9, 56, 0), V(0, 0, 1), 14),
], False)
sketch13.addConstraint([
    Sketcher.Constraint("Tangent", 0, 2, 1, 1),
    Sketcher.Constraint("Tangent", 1, 2, 2, 1),
    Sketcher.Constraint("Tangent", 2, 2, 3, 1),
    Sketcher.Constraint("Tangent", 3, 2, 0, 1),
    Sketcher.Constraint("Tangent", 4, 1, 5, 2),
    Sketcher.Constraint("Tangent", 5, 1, 6, 2),
    Sketcher.Constraint("Tangent", 6, 1, 7, 2),
    Sketcher.Constraint("Tangent", 7, 1, 8, 2),
    Sketcher.Constraint("Tangent", 8, 1, 9, 2),
    Sketcher.Constraint("Tangent", 9, 1, 10, 2),
    Sketcher.Constraint("Tangent", 10, 1, 11, 2),
    Sketcher.Constraint("Tangent", 11, 1, 12, 2),
    Sketcher.Constraint("Tangent", 12, 1, 13, 2),
    Sketcher.Constraint("Tangent", 13, 1, 14, 2),
    Sketcher.Constraint("Tangent", 14, 1, 15, 2),
    Sketcher.Constraint("Tangent", 15, 1, 4, 2),
    Sketcher.Constraint("Tangent", 19, 1, 20, 2),
    Sketcher.Constraint("Coincident", 20, 1, 19, 2),
    Sketcher.Constraint("Tangent", 21, 1, 22, 2),
    Sketcher.Constraint("Coincident", 22, 1, 21, 2),
    Sketcher.Constraint("Tangent", 24, 1, 25, 2),
    Sketcher.Constraint("Coincident", 25, 1, 24, 2),
    Sketcher.Constraint("Tangent", 26, 1, 27, 2),
    Sketcher.Constraint("Coincident", 27, 1, 26, 2),
    Sketcher.Constraint("Tangent", 28, 1, 29, 2),
    Sketcher.Constraint("Coincident", 29, 1, 28, 2),
    Sketcher.Constraint("Coincident", 4, 3, 0, 3),
    Sketcher.Constraint("Coincident", 6, 3, 0, 3),
    Sketcher.Constraint("Coincident", 8, 3, 0, 3),
    Sketcher.Constraint("Coincident", 10, 3, 0, 3),
    Sketcher.Constraint("Coincident", 12, 3, 0, 3),
    Sketcher.Constraint("Equal", 0, 1),
    Sketcher.Constraint("Equal", 12, 13),
    Sketcher.Constraint("Equal", 16, 17),
    Sketcher.Constraint("Equal", 17, 18),
    Sketcher.Constraint("Equal", 18, 19),
    Sketcher.Constraint("Equal", 20, 21),
    Sketcher.Constraint("Equal", 22, 23),
    Sketcher.Constraint("Equal", 23, 24),
    Sketcher.Constraint("Equal", 25, 26),
    Sketcher.Constraint("Equal", 27, 28),
    Sketcher.Constraint("Equal", 29, 30),
    Sketcher.Constraint("Horizontal", 17, 3, 18, 3),
    Sketcher.Constraint("Horizontal", 16, 3, 19, 3),
    Sketcher.Constraint("Horizontal", 15, 3, 23, 3),
    Sketcher.Constraint("Horizontal", 27, 3, 30, 3),
    Sketcher.Constraint("Horizontal", 23, 3, 0, 2),
    Sketcher.Constraint("Horizontal", 0, 2, 5, 1),
    Sketcher.Constraint("Horizontal", 3, 2, 8, 1),
    Sketcher.Constraint("Horizontal", 7, 1, 9, 1),
    Sketcher.Constraint("Horizontal", 6, 1, 10, 1),
    Sketcher.Constraint("Horizontal", 5, 1, 11, 1),
    Sketcher.Constraint("Horizontal", 1, 2, 14, 1),
    Sketcher.Constraint("Horizontal", 13, 1, 15, 1),
    Sketcher.Constraint("Horizontal", 19, 3, 20, 1),
    Sketcher.Constraint("Horizontal", 22, 3, 21, 1),
    Sketcher.Constraint("Horizontal", 25, 3, 24, 1),
    Sketcher.Constraint("Horizontal", 30, 3, 26, 1),
    Sketcher.Constraint("Horizontal", 29, 3, 28, 1),
    Sketcher.Constraint("Vertical", 15, 3, 21, 3),
    Sketcher.Constraint("Vertical", 18, 3, 26, 3),
    Sketcher.Constraint("Vertical", 22, 3, 28, 3),
    Sketcher.Constraint("Vertical", 17, 3, 30, 3),
    Sketcher.Constraint("Vertical", 2, 2, 5, 1),
    Sketcher.Constraint("Vertical", 4, 1, 6, 1),
    Sketcher.Constraint("Vertical", 29, 3, 8, 1),
    Sketcher.Constraint("Vertical", 9, 1, 13, 1),
    Sketcher.Constraint("Vertical", 8, 1, 14, 1),
    Sketcher.Constraint("Vertical", 14, 1, 22, 1),
    Sketcher.Constraint("Vertical", 22, 1, 29, 1),
    Sketcher.Constraint("Diameter", 16, Q("27 mm")),
    Sketcher.Constraint("Radius", 0, Q("75 mm")),
    Sketcher.Constraint("Radius", 4, Q("37.5 mm")),
    Sketcher.Constraint("DistanceY", 1, 2, 28, 3, Q("19 mm")),
    Sketcher.Constraint("DistanceY", 21, 3, 3, 2, Q("19 mm")),
    Sketcher.Constraint("DistanceX", 23, 3, 11, 1, Q("19 mm")),
    Sketcher.Constraint("DistanceX", 13, 1, 26, 1, Q("4 mm")),
    Sketcher.Constraint("DistanceY", 16, 3, 6, 1, Q("9.5 mm")),
    Sketcher.Constraint("DistanceX", 7, 1, 17, 3, Q("9.5 mm")),
    Sketcher.Constraint("DistanceY", 12, 1, 24, 3, Q("9.5 mm")),
    Sketcher.Constraint("DistanceY", 19, 1, 11, 1, Q("21.5 mm")),
    Sketcher.Constraint("DistanceY", 16, 3, 3, 3, Q("28.25 mm")),
    Sketcher.Constraint("DistanceX", 3, 3, 17, 3, Q("28.25 mm")),
    Sketcher.Constraint("DistanceY", 12, 1, 25, 1, Q("2.75 mm")),
    Sketcher.Constraint("DistanceX", 27, 1, 13, 1, Q("2.75 mm")),
    Sketcher.Constraint("DistanceX", 25, 1, -1, 1, Q("74.202102 mm")),
    Sketcher.Constraint("DistanceY", -1, 1, 0, 3, Q("6.732621 mm")),
    Sketcher.Constraint("DistanceX", -1, 1, 16, 3, Q("11.962809 mm")),
    Sketcher.Constraint("DistanceX", 19, 3, -1, 1, Q("85.898062 mm")),
    Sketcher.Constraint("DistanceX", -1, 1, 1, 2, Q("27.984279 mm")),
    Sketcher.Constraint("DistanceX", 12, 1, -1, 1, Q("69.438962 mm")),
    Sketcher.Constraint("DistanceY", 24, 3, 26, 3, Q("20.67244 mm")),
    Sketcher.Constraint("DistanceY", 2, 2, 17, 3, Q("16.02147 mm")),
])
pad13 = body13.newObject("PartDesign::Pad", "Pad012")
pad13.Profile = sketch13
pad13.Length = 20
body14 = doc.addObject("PartDesign::Body", "Body013")

sketch14 = body14.newObject("Sketcher::SketchObject", "Sketch013")
sketch14.AttachmentSupport = (doc.getObject("XZ_Plane013"), [""])
sketch14.MapMode = "FlatFace"
sketch14.addGeometry([
    Part.ArcOfCircle(Part.Circle(V(-37, 7, 0), V(0, 0, 1), 32), math.radians(60), math.radians(90)),
    Part.ArcOfCircle(Part.Circle(V(-37, 7, 0), V(0, 0, 1), 32), math.radians(90), math.radians(120)),
    Part.ArcOfCircle(Part.Circle(V(-37, 7, 0), V(0, 0, 1), 33), math.radians(120), math.radians(150)),
    Part.ArcOfCircle(Part.Circle(V(-37, 7, 0), V(0, 0, 1), 32), math.radians(150), math.radians(180)),
    Part.ArcOfCircle(Part.Circle(V(-37, 7, 0), V(0, 0, 1), 32), math.radians(180), math.radians(210)),
    Part.ArcOfCircle(Part.Circle(V(-37, 7, 0), V(0, 0, 1), 32), math.radians(-150), math.radians(-120)),
    Part.ArcOfCircle(Part.Circle(V(-37, 7, 0), V(0, 0, 1), 32), math.radians(-120), math.radians(-90)),
    Part.ArcOfCircle(Part.Circle(V(-37, 7, 0), V(0, 0, 1), 32), math.radians(-90), math.radians(-60)),
    Part.ArcOfCircle(Part.Circle(V(-37, 7, 0), V(0, 0, 1), 33), math.radians(-60), math.radians(-30)),
    Part.ArcOfCircle(Part.Circle(V(-37, 7, 0), V(0, 0, 1), 32), math.radians(-30), math.radians(0)),
    Part.ArcOfCircle(Part.Circle(V(-37, 7, 0), V(0, 0, 1), 32), math.radians(0), math.radians(30)),
    Part.ArcOfCircle(Part.Circle(V(-37, 7, 0), V(0, 0, 1), 33), math.radians(30), math.radians(60)),
], False)
sketch14.addConstraint([
    Sketcher.Constraint("Tangent", 0, 2, 1, 1),
    Sketcher.Constraint("Tangent", 1, 2, 2, 1),
    Sketcher.Constraint("Tangent", 2, 2, 3, 1),
    Sketcher.Constraint("Tangent", 3, 2, 4, 1),
    Sketcher.Constraint("Tangent", 4, 2, 5, 1),
    Sketcher.Constraint("Tangent", 5, 2, 6, 1),
    Sketcher.Constraint("Tangent", 6, 2, 7, 1),
    Sketcher.Constraint("Tangent", 7, 2, 8, 1),
    Sketcher.Constraint("Tangent", 8, 2, 9, 1),
    Sketcher.Constraint("Tangent", 9, 2, 10, 1),
    Sketcher.Constraint("Tangent", 10, 2, 11, 1),
    Sketcher.Constraint("Tangent", 11, 2, 0, 1),
    Sketcher.Constraint("Coincident", 2, 3, 0, 3),
    Sketcher.Constraint("Coincident", 4, 3, 0, 3),
    Sketcher.Constraint("Coincident", 6, 3, 0, 3),
    Sketcher.Constraint("Coincident", 8, 3, 0, 3),
    Sketcher.Constraint("Equal", 8, 9),
    Sketcher.Constraint("Horizontal", 11, 3, 3, 2),
    Sketcher.Constraint("Horizontal", 5, 2, 7, 2),
    Sketcher.Constraint("Horizontal", 4, 2, 8, 2),
    Sketcher.Constraint("Horizontal", 3, 2, 9, 2),
    Sketcher.Constraint("Horizontal", 1, 2, 11, 2),
    Sketcher.Constraint("Vertical", 11, 3, 0, 2),
    Sketcher.Constraint("Vertical", 1, 2, 5, 2),
    Sketcher.Constraint("Vertical", 0, 2, 6, 2),
    Sketcher.Constraint("Vertical", 8, 2, 10, 2),
    Sketcher.Constraint("Radius", 0, Q("32.5 mm")),
    Sketcher.Constraint("DistanceX", 1, 2, 11, 2, Q("32.5 mm")),
    Sketcher.Constraint("DistanceY", 4, 2, 3, 2, Q("16.25 mm")),
    Sketcher.Constraint("DistanceX", 8, 2, -1, 1, Q("8.821801 mm")),
    Sketcher.Constraint("DistanceY", -1, 1, 0, 3, Q("6.732621 mm")),
    Sketcher.Constraint("DistanceX", 2, 2, 1, 2, Q("11.891208 mm")),
])
pad14 = body14.newObject("PartDesign::Pad", "Pad013")
pad14.Profile = sketch14
pad14.Length = 20

doc.recompute()
